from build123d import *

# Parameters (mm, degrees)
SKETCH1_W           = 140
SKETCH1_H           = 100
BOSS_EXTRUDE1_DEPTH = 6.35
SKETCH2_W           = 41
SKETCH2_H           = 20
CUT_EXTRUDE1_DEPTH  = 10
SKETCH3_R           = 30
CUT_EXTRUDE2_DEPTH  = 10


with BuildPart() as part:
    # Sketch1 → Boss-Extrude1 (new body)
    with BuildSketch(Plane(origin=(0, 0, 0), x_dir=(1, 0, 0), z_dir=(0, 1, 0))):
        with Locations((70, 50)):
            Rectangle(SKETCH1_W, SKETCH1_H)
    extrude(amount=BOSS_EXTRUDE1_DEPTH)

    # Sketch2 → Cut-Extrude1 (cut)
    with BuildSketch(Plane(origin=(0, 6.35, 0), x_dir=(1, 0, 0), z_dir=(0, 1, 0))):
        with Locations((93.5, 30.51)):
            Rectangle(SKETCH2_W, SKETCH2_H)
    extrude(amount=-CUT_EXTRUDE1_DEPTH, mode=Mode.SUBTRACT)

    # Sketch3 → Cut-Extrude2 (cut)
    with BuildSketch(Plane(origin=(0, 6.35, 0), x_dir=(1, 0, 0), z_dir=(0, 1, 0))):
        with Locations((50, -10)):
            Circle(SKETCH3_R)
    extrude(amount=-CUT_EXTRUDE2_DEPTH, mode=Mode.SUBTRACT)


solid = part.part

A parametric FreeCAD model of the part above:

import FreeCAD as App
import Part
import Sketcher

V = App.Vector
Q = App.Units.Quantity

doc = App.newDocument("Part")
params = doc.addObject("Spreadsheet::Sheet", "Params")
for row, (alias, value) in enumerate([
    ("sketch1_width", "140 mm"),
    ("sketch1_height", "100 mm"),
    ("pad1_length", "6.35 mm"),
    ("sketch2_width", "41 mm"),
    ("sketch2_height", "20 mm"),
    ("pocket1_length", "10 mm"),
    ("sketch3_diameter", "60 mm"),
    ("pocket2_length", "10 mm"),
], start=1):
    params.set(f"A{row}", alias)
    params.set(f"B{row}", "=" + value)
    params.setAlias(f"B{row}", alias)

body = doc.addObject("PartDesign::Body", "Body")

# Sketch on XZ plane
sketch1 = doc.addObject("Sketcher::SketchObject", "Sketch")
body.addObject(sketch1)
sketch1.AttachmentSupport = (doc.XZ_Plane, [""])
sketch1.MapMode = "FlatFace"
sketch1.addGeometry([
    Part.LineSegment(V(0, -100, 0), V(0, 0, 0)),
    Part.LineSegment(V(0, 0, 0), V(140, 0, 0)),
    Part.LineSegment(V(140, 0, 0), V(140, -100, 0)),
    Part.LineSegment(V(140, -100, 0), V(0, -100, 0)),
], False)
sketch1.addConstraint([
    Sketcher.Constraint("Coincident", 0, 2, 1, 1),
    Sketcher.Constraint("Coincident", 1, 2, 2, 1),
    Sketcher.Constraint("Coincident", 2, 2, 3, 1),
    Sketcher.Constraint("Coincident", 3, 2, 0, 1),
    Sketcher.Constraint("Vertical", 0),
    Sketcher.Constraint("Horizontal", 1),
    Sketcher.Constraint("Vertical", 2),
    Sketcher.Constraint("Horizontal", 3),
    Sketcher.Constraint("Coincident", 0, 2, -1, 1),
    Sketcher.Constraint("DistanceX", 1, 1, 1, 2, Q("140 mm")),
    Sketcher.Constraint("DistanceY", 0, 1, 0, 2, Q("100 mm")),
])
sketch1.setExpression("Constraints[9]", "Params.sketch1_width")
sketch1.setExpression("Constraints[10]", "Params.sketch1_height")
pad1 = doc.addObject("PartDesign::Pad", "Pad")
body.addObject(pad1)
pad1.Profile = sketch1
pad1.setExpression("Length", "Params.pad1_length")
pad1.Reversed = True

# Sketch on XZ plane
sketch2 = doc.addObject("Sketcher::SketchObject", "Sketch001")
body.addObject(sketch2)
sketch2.AttachmentSupport = (doc.XZ_Plane, [""])
sketch2.MapMode = "FlatFace"
sketch2.AttachmentOffset = App.Placement(V(0, 0, -6.35), App.Rotation())
sketch2.addGeometry([
    Part.LineSegment(V(73, -40.51, 0), V(73, -20.51, 0)),
    Part.LineSegment(V(73, -20.51, 0), V(114, -20.51, 0)),
    Part.LineSegment(V(114, -20.51, 0), V(114, -40.51, 0)),
    Part.LineSegment(V(114, -40.51, 0), V(73, -40.51, 0)),
], False)
sketch2.addConstraint([
    Sketcher.Constraint("Coincident", 0, 2, 1, 1),
    Sketcher.Constraint("Coincident", 1, 2, 2, 1),
    Sketcher.Constraint("Coincident", 2, 2, 3, 1),
    Sketcher.Constraint("Coincident", 3, 2, 0, 1),
    Sketcher.Constraint("Vertical", 0),
    Sketcher.Constraint("Horizontal", 1),
    Sketcher.Constraint("Vertical", 2),
    Sketcher.Constraint("Horizontal", 3),
    Sketcher.Constraint("DistanceX", 1, 1, 1, 2, Q("41 mm")),
    Sketcher.Constraint("DistanceY", 0, 1, 0, 2, Q("20 mm")),
    Sketcher.Constraint("DistanceX", -1, 1, 0, 2, Q("73 mm")),
    Sketcher.Constraint("DistanceY", 0, 2, -1, 1, Q("20.51 mm")),
])
sketch2.setExpression("Constraints[8]", "Params.sketch2_width")
sketch2.setExpression("Constraints[9]", "Params.sketch2_height")
pocket1 = doc.addObject("PartDesign::Pocket", "Pocket")
body.addObject(pocket1)
pocket1.Profile = sketch2
pocket1.setExpression("Length", "Params.pocket1_length")
pocket1.Reversed = True

# Sketch on XZ plane
sketch3 = doc.addObject("Sketcher::SketchObject", "Sketch002")
body.addObject(sketch3)
sketch3.AttachmentSupport = (doc.XZ_Plane, [""])
sketch3.MapMode = "FlatFace"
sketch3.AttachmentOffset = App.Placement(V(0, 0, -6.35), App.Rotation())
sketch3.addGeometry(Part.Circle(V(50, 10, 0), V(0, 0, 1), 30), False)
sketch3.addConstraint([
    Sketcher.Constraint("Diameter", 0, Q("60 mm")),
    Sketcher.Constraint("DistanceX", -1, 1, 0, 3, Q("50 mm")),
    Sketcher.Constraint("DistanceY", -1, 1, 0, 3, Q("10 mm")),
])
sketch3.setExpression("Constraints[0]", "Params.sketch3_diameter")
pocket2 = doc.addObject("PartDesign::Pocket", "Pocket001")
body.addObject(pocket2)
pocket2.Profile = sketch3
pocket2.setExpression("Length", "Params.pocket2_length")
pocket2.Reversed = True

doc.recompute()
